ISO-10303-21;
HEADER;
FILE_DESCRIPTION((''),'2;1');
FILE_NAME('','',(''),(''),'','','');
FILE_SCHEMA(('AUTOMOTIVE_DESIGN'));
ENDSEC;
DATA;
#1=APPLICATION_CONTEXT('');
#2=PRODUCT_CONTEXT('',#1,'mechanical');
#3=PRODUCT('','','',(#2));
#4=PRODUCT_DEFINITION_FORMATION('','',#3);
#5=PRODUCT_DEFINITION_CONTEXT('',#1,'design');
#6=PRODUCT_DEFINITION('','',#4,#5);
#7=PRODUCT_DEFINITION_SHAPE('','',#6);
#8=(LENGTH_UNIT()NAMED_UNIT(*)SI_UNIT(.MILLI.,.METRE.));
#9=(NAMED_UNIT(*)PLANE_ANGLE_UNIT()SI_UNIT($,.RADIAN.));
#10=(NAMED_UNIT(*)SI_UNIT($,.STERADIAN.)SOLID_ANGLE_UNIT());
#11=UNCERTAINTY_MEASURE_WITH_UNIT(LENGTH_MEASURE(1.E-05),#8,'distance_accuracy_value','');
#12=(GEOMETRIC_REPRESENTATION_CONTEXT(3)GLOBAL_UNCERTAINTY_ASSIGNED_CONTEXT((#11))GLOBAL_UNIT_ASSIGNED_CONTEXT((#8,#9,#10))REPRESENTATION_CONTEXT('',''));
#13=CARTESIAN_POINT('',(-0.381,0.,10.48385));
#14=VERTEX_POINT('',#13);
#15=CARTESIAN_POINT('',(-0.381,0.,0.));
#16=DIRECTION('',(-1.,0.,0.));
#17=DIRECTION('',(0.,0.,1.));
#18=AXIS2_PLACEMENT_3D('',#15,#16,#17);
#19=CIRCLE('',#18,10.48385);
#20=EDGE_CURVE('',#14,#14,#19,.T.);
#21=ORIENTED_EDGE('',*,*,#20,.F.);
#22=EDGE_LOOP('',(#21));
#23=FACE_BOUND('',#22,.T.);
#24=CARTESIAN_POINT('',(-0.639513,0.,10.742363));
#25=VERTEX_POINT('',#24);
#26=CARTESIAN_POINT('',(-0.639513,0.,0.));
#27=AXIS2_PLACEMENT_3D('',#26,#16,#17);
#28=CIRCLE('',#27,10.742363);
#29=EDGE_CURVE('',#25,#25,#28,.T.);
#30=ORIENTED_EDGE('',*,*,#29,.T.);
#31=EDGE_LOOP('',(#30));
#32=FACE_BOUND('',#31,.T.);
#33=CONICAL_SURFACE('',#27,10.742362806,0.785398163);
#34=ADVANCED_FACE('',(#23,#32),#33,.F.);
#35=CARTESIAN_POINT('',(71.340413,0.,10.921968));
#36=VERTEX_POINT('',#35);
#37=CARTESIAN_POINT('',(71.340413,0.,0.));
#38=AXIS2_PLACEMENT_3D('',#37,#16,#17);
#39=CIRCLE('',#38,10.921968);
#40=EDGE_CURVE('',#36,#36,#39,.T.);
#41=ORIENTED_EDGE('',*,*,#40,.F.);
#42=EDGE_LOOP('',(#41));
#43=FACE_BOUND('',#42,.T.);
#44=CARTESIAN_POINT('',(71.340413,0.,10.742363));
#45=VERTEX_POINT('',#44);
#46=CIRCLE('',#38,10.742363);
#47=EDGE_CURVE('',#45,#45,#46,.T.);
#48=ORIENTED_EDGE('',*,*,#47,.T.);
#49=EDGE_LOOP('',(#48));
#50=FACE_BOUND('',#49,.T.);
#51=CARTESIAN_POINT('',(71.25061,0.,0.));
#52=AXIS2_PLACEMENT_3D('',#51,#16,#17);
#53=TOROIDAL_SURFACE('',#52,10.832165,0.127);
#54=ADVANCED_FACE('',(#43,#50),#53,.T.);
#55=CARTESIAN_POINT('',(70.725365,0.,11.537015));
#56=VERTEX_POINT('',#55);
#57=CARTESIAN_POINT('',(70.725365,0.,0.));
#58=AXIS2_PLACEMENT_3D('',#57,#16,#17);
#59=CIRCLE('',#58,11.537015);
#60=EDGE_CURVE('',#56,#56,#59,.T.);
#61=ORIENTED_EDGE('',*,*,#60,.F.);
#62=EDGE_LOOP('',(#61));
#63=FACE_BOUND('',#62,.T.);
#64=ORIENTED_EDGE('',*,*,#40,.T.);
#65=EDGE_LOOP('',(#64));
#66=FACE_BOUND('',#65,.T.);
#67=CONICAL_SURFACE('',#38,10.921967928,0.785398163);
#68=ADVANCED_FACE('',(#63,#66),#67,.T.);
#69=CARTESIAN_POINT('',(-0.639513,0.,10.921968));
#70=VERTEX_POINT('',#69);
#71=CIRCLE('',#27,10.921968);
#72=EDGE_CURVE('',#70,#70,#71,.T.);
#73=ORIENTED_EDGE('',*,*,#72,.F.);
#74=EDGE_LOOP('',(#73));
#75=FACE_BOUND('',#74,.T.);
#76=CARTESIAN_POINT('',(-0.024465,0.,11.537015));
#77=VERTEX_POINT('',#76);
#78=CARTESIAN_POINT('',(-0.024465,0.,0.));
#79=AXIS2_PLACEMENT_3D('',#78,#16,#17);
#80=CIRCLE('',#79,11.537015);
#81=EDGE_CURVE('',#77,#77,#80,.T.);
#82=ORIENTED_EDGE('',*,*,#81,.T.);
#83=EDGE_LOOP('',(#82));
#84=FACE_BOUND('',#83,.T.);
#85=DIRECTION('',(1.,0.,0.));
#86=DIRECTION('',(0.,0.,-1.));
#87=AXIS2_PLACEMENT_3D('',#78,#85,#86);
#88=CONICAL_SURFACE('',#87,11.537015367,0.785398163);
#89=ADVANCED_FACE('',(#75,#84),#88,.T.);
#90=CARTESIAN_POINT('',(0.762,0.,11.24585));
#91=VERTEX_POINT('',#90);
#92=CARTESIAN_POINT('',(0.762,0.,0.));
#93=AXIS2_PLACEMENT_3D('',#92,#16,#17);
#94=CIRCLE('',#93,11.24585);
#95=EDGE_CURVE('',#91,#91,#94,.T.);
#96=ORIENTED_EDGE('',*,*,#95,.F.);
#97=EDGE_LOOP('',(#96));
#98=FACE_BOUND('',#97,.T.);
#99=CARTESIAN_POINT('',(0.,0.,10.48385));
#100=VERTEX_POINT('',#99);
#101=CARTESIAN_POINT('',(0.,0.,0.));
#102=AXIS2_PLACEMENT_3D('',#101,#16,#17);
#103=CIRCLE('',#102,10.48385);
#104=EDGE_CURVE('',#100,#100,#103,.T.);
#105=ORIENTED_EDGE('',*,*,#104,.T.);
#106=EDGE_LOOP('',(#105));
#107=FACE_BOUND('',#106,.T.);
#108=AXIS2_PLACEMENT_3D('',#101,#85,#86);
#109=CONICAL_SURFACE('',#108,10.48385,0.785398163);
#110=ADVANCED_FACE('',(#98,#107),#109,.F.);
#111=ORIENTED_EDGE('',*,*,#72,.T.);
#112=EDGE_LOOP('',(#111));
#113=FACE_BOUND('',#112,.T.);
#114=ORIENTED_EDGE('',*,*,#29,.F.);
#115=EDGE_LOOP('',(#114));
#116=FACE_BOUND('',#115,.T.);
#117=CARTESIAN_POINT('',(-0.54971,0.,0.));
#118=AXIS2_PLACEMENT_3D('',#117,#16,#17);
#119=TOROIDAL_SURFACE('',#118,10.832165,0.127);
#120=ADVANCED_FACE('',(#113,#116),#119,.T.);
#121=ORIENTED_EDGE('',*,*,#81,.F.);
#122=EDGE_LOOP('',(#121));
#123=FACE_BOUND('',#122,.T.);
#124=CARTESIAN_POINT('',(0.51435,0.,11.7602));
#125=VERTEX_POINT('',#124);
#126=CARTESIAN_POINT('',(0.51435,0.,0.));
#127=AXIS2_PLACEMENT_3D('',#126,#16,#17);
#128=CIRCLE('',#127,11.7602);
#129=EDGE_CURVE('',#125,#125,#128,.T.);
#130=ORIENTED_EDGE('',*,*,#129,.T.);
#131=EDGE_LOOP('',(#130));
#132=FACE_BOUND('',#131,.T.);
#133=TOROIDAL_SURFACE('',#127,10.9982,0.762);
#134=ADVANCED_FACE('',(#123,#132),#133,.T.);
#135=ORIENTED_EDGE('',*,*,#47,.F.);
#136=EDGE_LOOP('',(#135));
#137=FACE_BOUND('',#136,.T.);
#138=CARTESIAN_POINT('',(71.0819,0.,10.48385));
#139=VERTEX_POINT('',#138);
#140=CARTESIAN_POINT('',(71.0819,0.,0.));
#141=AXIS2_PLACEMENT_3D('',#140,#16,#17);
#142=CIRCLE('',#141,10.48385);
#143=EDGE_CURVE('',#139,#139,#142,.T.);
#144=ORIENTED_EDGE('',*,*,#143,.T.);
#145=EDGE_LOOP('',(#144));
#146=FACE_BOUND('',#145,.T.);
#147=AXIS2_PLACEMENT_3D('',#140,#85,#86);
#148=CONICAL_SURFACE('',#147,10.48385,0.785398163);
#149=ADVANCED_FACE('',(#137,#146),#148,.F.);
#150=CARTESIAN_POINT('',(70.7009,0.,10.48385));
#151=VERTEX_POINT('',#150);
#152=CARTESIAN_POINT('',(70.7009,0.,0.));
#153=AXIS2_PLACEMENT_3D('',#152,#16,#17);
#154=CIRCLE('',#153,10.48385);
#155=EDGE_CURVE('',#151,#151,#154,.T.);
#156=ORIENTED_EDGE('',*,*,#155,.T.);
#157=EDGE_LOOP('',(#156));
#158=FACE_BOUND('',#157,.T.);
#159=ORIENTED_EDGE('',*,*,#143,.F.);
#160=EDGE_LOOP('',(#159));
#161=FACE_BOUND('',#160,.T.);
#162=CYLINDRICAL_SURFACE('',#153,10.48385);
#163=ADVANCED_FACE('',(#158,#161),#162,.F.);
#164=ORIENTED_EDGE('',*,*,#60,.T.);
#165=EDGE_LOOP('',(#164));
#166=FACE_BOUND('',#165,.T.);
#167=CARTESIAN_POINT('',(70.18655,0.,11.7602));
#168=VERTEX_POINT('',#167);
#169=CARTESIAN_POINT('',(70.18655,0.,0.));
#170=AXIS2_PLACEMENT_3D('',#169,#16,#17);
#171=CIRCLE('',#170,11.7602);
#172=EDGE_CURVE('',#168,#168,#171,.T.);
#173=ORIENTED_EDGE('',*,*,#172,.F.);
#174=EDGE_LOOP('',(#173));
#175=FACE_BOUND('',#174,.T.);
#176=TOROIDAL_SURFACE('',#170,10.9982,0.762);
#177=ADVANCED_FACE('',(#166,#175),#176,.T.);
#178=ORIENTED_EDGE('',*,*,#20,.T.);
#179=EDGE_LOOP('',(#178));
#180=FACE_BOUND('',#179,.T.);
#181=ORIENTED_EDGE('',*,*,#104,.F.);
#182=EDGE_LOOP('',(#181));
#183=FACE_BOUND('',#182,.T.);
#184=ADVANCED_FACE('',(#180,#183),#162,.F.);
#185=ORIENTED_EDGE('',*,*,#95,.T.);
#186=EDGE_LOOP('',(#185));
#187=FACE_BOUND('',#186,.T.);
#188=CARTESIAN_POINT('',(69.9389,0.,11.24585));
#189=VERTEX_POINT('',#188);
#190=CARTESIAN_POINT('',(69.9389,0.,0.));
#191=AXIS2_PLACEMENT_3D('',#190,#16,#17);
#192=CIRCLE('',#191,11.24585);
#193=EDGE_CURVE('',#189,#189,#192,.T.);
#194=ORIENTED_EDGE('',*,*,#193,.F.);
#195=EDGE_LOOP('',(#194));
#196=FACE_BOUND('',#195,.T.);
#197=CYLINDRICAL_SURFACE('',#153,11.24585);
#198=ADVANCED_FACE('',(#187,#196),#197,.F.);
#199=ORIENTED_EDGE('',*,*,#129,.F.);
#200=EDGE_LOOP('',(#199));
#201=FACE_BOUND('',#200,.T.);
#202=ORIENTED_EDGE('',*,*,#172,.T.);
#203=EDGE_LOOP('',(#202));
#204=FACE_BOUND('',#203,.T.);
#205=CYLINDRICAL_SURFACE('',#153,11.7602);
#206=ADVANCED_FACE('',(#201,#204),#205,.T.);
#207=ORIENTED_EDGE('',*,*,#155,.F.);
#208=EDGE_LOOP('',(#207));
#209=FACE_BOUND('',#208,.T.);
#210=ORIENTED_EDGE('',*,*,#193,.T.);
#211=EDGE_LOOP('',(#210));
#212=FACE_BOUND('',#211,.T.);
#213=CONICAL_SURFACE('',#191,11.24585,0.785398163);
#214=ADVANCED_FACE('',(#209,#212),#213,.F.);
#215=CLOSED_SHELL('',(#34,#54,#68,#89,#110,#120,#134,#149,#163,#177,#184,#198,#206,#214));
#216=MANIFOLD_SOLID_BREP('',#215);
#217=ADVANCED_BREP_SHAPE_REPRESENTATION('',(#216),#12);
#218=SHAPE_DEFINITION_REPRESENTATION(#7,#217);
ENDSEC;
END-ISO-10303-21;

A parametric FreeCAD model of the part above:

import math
import FreeCAD as App
import Part
import Sketcher

V = App.Vector
Q = App.Units.Quantity

doc = App.newDocument("Part")
body = doc.addObject("PartDesign::Body", "Body")

# Sketch on XY plane
sketch1 = body.newObject("Sketcher::SketchObject", "Sketch")
sketch1.AttachmentSupport = (doc.getObject("XY_Plane"), [""])
sketch1.MapMode = "FlatFace"
sketch1.addGeometry(Part.LineSegment(V(-0.64, 10.74, 0), V(-0.38, 10.48, 0)), False)
sketch1.addGeometry(Part.LineSegment(V(-0.38, 10.48, 0), V(0, 10.48, 0)), False)
sketch1.addGeometry(Part.LineSegment(V(0, 10.48, 0), V(0.76, 11.25, 0)), False)
sketch1.addGeometry(Part.LineSegment(V(0.76, 11.25, 0), V(69.94, 11.25, 0)), False)
sketch1.addGeometry(Part.LineSegment(V(69.94, 11.25, 0), V(70.7, 10.48, 0)), False)
sketch1.addGeometry(Part.LineSegment(V(70.7, 10.48, 0), V(71.08, 10.48, 0)), False)
sketch1.addGeometry(Part.LineSegment(V(71.08, 10.48, 0), V(71.34, 10.74, 0)), False)
sketch1.addGeometry(Part.ArcOfCircle(Part.Circle(V(71.25, 10.83, 0), V(0, 0, 1), 0.13), math.radians(-45), math.radians(45)), False)
sketch1.addGeometry(Part.LineSegment(V(71.34, 10.92, 0), V(70.73, 11.54, 0)), False)
sketch1.addGeometry(Part.ArcOfCircle(Part.Circle(V(70.19, 11, 0), V(0, 0, 1), 0.76), math.radians(45), math.radians(90)), False)
sketch1.addGeometry(Part.LineSegment(V(70.19, 11.76, 0), V(0.51, 11.76, 0)), False)
sketch1.addGeometry(Part.ArcOfCircle(Part.Circle(V(0.51, 11, 0), V(0, 0, 1), 0.76), math.radians(90), math.radians(135)), False)
sketch1.addGeometry(Part.LineSegment(V(-0.02, 11.54, 0), V(-0.64, 10.92, 0)), False)
sketch1.addGeometry(Part.ArcOfCircle(Part.Circle(V(-0.55, 10.83, 0), V(0, 0, 1), 0.13), math.radians(135), math.radians(225)), False)
sketch1.addConstraint(Sketcher.Constraint("Coincident", 0, 2, 1, 1))
sketch1.addConstraint(Sketcher.Constraint("Coincident", 1, 2, 2, 1))
sketch1.addConstraint(Sketcher.Constraint("Coincident", 2, 2, 3, 1))
sketch1.addConstraint(Sketcher.Constraint("Coincident", 3, 2, 4, 1))
sketch1.addConstraint(Sketcher.Constraint("Coincident", 4, 2, 5, 1))
sketch1.addConstraint(Sketcher.Constraint("Coincident", 5, 2, 6, 1))
sketch1.addConstraint(Sketcher.Constraint("Tangent", 6, 2, 7, 1))
sketch1.addConstraint(Sketcher.Constraint("Tangent", 7, 2, 8, 1))
sketch1.addConstraint(Sketcher.Constraint("Tangent", 8, 2, 9, 1))
sketch1.addConstraint(Sketcher.Constraint("Tangent", 9, 2, 10, 1))
sketch1.addConstraint(Sketcher.Constraint("Tangent", 10, 2, 11, 1))
sketch1.addConstraint(Sketcher.Constraint("Tangent", 11, 2, 12, 1))
sketch1.addConstraint(Sketcher.Constraint("Tangent", 12, 2, 13, 1))
sketch1.addConstraint(Sketcher.Constraint("Tangent", 13, 2, 0, 1))
sketch1.addConstraint(Sketcher.Constraint("Horizontal", 1))
sketch1.addConstraint(Sketcher.Constraint("Horizontal", 3))
sketch1.addConstraint(Sketcher.Constraint("Horizontal", 5))
sketch1.addConstraint(Sketcher.Constraint("Horizontal", 10))
sketch1.addConstraint(Sketcher.Constraint("Equal", 9, 11))
sketch1.addConstraint(Sketcher.Constraint("Equal", 7, 13))
sketch1.addConstraint(Sketcher.Constraint("PointOnObject", 1, 2, -2))
sketch1.addConstraint(Sketcher.Constraint("Perpendicular", 0, 2))
sketch1.addConstraint(Sketcher.Constraint("Perpendicular", 2, 4))
sketch1.addConstraint(Sketcher.Constraint("Perpendicular", 4, 6))
sketch1.addConstraint(Sketcher.Constraint("Perpendicular", 6, 8))
sketch1.addConstraint(Sketcher.Constraint("Perpendicular", 8, 12))
sketch1.addConstraint(Sketcher.Constraint("Horizontal", 7, 3, 13, 3))
sketch1.addConstraint(Sketcher.Constraint("Horizontal", 1, 2, 4, 2))
sketch1.addConstraint(Sketcher.Constraint("Horizontal", 8, 2, 11, 2))
sketch1.addConstraint(Sketcher.Constraint("Equal", 1, 5))
sketch1.addConstraint(Sketcher.Constraint("Radius", 9, Q("0.03 in")))
sketch1.addConstraint(Sketcher.Constraint("Radius", 7, Q("0.005 in")))
sketch1.addConstraint(Sketcher.Constraint("DistanceX", 1, 1, 1, 2, Q("0.015 in")))
sketch1.addConstraint(Sketcher.Constraint("DistanceX", 10, 2, 10, 1, Q("2.743 in")))
sketch1.addConstraint(Sketcher.Constraint("DistanceX", -1, 1, 2, 2, Q("0.03 in")))
sketch1.addConstraint(Sketcher.Constraint("DistanceX", 3, 1, 3, 2, Q("2.7235 in")))
sketch1.addConstraint(Sketcher.Constraint("DistanceY", -1, 1, 9, 3, Q("0.433 in")))
sketch1.addConstraint(Sketcher.Constraint("Distance", 8, 0.869808))
revolution = body.newObject("PartDesign::Revolution", "Revolution")
revolution.Profile = sketch1
revolution.ReferenceAxis = (sketch1, ["H_Axis"])
revolution.Angle = 360

doc.recompute()
